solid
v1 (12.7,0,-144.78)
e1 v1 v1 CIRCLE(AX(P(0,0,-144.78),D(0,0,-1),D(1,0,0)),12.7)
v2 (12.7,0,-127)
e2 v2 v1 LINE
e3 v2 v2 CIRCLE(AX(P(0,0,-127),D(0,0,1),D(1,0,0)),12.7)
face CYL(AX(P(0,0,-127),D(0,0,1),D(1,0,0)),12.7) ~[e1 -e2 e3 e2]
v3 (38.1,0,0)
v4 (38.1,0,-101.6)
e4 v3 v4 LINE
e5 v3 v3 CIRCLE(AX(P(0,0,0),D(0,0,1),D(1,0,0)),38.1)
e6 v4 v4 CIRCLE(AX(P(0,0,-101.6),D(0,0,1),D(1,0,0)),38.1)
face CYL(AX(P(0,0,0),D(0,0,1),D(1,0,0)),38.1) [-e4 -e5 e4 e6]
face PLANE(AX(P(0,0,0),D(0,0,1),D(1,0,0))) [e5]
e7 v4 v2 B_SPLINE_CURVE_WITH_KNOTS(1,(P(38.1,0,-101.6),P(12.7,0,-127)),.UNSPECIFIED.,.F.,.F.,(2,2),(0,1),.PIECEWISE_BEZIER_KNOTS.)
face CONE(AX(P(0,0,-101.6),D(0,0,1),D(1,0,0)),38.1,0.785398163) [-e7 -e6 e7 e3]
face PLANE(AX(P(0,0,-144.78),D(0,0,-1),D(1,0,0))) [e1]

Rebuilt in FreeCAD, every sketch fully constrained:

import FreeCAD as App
import Part
import Sketcher
from FreeCAD import Vector
Q = App.Units.Quantity

doc = App.newDocument("Part")
params = doc.addObject("Spreadsheet::Sheet", "Params")
for row, (alias, value) in enumerate([
    ("sketch1_diameter", "3 in"),
    ("pad1_length", "4 in"),
    ("sketch2_diameter", "3 in"),
    ("pad2_length", "1 in"),
    ("pad2_taper", "-45 deg"),
    ("sketch3_diameter", "1 in"),
    ("pad3_length", "0.7 in"),
], start=1):
    params.set(f"A{row}", alias)
    params.set(f"B{row}", "=" + value)
    params.setAlias(f"B{row}", alias)

body = doc.addObject("PartDesign::Body", "Body")

sketch1 = body.newObject("Sketcher::SketchObject", "Sketch")
sketch1.AttachmentSupport = (doc.getObject("XY_Plane"), [""])
sketch1.MapMode = "FlatFace"
sketch1.addGeometry(Part.Circle(Vector(0, 0, 0), Vector(0, 0, 1), 38.1), False)
sketch1.addConstraint(Sketcher.Constraint("Coincident", 0, 3, -1, 1))
sketch1.addConstraint(Sketcher.Constraint("Diameter", 0, Q("3 in")))
sketch1.setExpression("Constraints[1]", "Params.sketch1_diameter")
pad1 = body.newObject("PartDesign::Pad", "Pad")
pad1.Profile = sketch1
pad1.setExpression("Length", "Params.pad1_length")
pad1.Reversed = True

sketch2 = body.newObject("Sketcher::SketchObject", "Sketch001")
sketch2.AttachmentSupport = (doc.getObject("XY_Plane"), [""])
sketch2.MapMode = "FlatFace"
sketch2.AttachmentOffset = App.Placement(Vector(0, 0, -4 * 25.4), App.Rotation())
sketch2.addGeometry(Part.Circle(Vector(0, 0, 0), Vector(0, 0, 1), 38.1), False)
sketch2.addConstraint(Sketcher.Constraint("Coincident", 0, 3, -1, 1))
sketch2.addConstraint(Sketcher.Constraint("Diameter", 0, Q("3 in")))
sketch2.setExpression("Constraints[1]", "Params.sketch2_diameter")
pad2 = body.newObject("PartDesign::Pad", "Pad001")
pad2.Profile = sketch2
pad2.setExpression("Length", "Params.pad2_length")
pad2.Reversed = True
pad2.setExpression("TaperAngle", "Params.pad2_taper")

sketch3 = body.newObject("Sketcher::SketchObject", "Sketch002")
sketch3.AttachmentSupport = (doc.getObject("XY_Plane"), [""])
sketch3.MapMode = "FlatFace"
sketch3.AttachmentOffset = App.Placement(Vector(0, 0, -5 * 25.4), App.Rotation())
sketch3.addGeometry(Part.Circle(Vector(0, 0, 0), Vector(0, 0, 1), 12.7), False)
sketch3.addConstraint(Sketcher.Constraint("Coincident", 0, 3, -1, 1))
sketch3.addConstraint(Sketcher.Constraint("Diameter", 0, Q("1 in")))
sketch3.setExpression("Constraints[1]", "Params.sketch3_diameter")
pad3 = body.newObject("PartDesign::Pad", "Pad002")
pad3.Profile = sketch3
pad3.setExpression("Length", "Params.pad3_length")
pad3.Reversed = True

doc.recompute()
